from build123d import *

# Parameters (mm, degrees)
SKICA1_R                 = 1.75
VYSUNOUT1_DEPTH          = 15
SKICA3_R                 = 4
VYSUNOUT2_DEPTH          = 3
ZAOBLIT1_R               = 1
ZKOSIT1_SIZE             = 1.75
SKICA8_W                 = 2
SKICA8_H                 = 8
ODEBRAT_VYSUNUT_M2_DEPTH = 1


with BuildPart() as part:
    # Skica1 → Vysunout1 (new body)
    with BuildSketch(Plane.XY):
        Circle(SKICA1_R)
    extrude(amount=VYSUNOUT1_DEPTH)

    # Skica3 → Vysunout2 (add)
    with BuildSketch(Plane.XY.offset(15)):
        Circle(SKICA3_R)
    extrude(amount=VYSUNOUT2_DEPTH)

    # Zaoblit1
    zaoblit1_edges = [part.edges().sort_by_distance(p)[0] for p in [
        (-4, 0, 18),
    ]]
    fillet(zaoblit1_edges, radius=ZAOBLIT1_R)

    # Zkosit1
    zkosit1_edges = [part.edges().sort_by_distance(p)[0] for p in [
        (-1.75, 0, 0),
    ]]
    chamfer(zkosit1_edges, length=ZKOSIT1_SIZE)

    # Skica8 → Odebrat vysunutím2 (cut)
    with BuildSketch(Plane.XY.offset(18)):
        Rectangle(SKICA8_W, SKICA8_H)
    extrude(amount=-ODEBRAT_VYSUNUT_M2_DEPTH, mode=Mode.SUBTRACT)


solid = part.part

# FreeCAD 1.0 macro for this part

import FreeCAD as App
import Part
import Sketcher

V = App.Vector
Q = App.Units.Quantity


def edges_at(feature, points):
    """Names of the edges that pass closest to the given points."""
    edges = feature.Shape.Edges
    near = lambda p: min(range(len(edges)), key=lambda i: edges[i].distToShape(Part.Vertex(*p))[0])
    return sorted({f"Edge{near(p) + 1}" for p in points})


def add_polygon(sketch, points):
    """Adds a closed chain of lines whose ends are joined by coincident constraints."""
    first, n = sketch.GeometryCount, len(points)
    for a, b in zip(points, points[1:] + points[:1]):
        sketch.addGeometry(Part.LineSegment(App.Vector(*a, 0), App.Vector(*b, 0)), False)
    for i in range(n):
        sketch.addConstraint(Sketcher.Constraint("Coincident", first + i, 2, first + (i + 1) % n, 1))

doc = App.newDocument("Part")
body = doc.addObject("PartDesign::Body", "Body")

# Sketch on XY plane
sketch1 = doc.addObject("Sketcher::SketchObject", "Sketch")
body.addObject(sketch1)
sketch1.AttachmentSupport = (doc.XY_Plane, [""])
sketch1.MapMode = "FlatFace"
sketch1.addGeometry(Part.Circle(V(0, 0, 0), V(0, 0, 1), 1.8), False)
sketch1.addConstraint(Sketcher.Constraint("Coincident", 0, 3, -1, 1))
sketch1.addConstraint(Sketcher.Constraint("Diameter", 0, Q("3.5 mm")))
pad1 = doc.addObject("PartDesign::Pad", "Pad")
body.addObject(pad1)
pad1.Profile = sketch1
pad1.Length = 15

# Sketch on XY plane
sketch2 = doc.addObject("Sketcher::SketchObject", "Sketch001")
body.addObject(sketch2)
sketch2.AttachmentSupport = (doc.XY_Plane, [""])
sketch2.MapMode = "FlatFace"
sketch2.AttachmentOffset = App.Placement(V(0, 0, 15), App.Rotation())
sketch2.addGeometry(Part.Circle(V(0, 0, 0), V(0, 0, 1), 4), False)
sketch2.addConstraint(Sketcher.Constraint("Coincident", 0, 3, -1, 1))
sketch2.addConstraint(Sketcher.Constraint("Diameter", 0, Q("8 mm")))
pad2 = doc.addObject("PartDesign::Pad", "Pad001")
body.addObject(pad2)
pad2.Profile = sketch2
pad2.Length = 3
doc.recompute()

fillet = doc.addObject("PartDesign::Fillet", "Fillet")
body.addObject(fillet)
fillet.Base = (pad2, edges_at(pad2, [(-4, 0, 18)]))
fillet.Radius = 1
doc.recompute()

chamfer = doc.addObject("PartDesign::Chamfer", "Chamfer")
body.addObject(chamfer)
chamfer.Base = (fillet, edges_at(fillet, [(-1.75, 0, 0)]))
chamfer.Size = 1.75

# Sketch on XY plane
sketch3 = doc.addObject("Sketcher::SketchObject", "Sketch002")
body.addObject(sketch3)
sketch3.AttachmentSupport = (doc.XY_Plane, [""])
sketch3.MapMode = "FlatFace"
sketch3.AttachmentOffset = App.Placement(V(0, 0, 18), App.Rotation())
add_polygon(sketch3, [(-1, 4), (-1, -4), (1, -4), (1, 4)])  # lines 0-3
sketch3.addConstraint(Sketcher.Constraint("Vertical", 0))
sketch3.addConstraint(Sketcher.Constraint("Horizontal", 1))
sketch3.addConstraint(Sketcher.Constraint("Vertical", 2))
sketch3.addConstraint(Sketcher.Constraint("Horizontal", 3))
sketch3.addConstraint(Sketcher.Constraint("Symmetric", 0, 2, 2, 2, -1, 1))
sketch3.addConstraint(Sketcher.Constraint("DistanceX", 1, 1, 1, 2, Q("2 mm")))
sketch3.addConstraint(Sketcher.Constraint("DistanceY", 0, 2, 0, 1, Q("8 mm")))
pocket1 = doc.addObject("PartDesign::Pocket", "Pocket")
body.addObject(pocket1)
pocket1.Profile = sketch3
pocket1.Length = 1

doc.recompute()
